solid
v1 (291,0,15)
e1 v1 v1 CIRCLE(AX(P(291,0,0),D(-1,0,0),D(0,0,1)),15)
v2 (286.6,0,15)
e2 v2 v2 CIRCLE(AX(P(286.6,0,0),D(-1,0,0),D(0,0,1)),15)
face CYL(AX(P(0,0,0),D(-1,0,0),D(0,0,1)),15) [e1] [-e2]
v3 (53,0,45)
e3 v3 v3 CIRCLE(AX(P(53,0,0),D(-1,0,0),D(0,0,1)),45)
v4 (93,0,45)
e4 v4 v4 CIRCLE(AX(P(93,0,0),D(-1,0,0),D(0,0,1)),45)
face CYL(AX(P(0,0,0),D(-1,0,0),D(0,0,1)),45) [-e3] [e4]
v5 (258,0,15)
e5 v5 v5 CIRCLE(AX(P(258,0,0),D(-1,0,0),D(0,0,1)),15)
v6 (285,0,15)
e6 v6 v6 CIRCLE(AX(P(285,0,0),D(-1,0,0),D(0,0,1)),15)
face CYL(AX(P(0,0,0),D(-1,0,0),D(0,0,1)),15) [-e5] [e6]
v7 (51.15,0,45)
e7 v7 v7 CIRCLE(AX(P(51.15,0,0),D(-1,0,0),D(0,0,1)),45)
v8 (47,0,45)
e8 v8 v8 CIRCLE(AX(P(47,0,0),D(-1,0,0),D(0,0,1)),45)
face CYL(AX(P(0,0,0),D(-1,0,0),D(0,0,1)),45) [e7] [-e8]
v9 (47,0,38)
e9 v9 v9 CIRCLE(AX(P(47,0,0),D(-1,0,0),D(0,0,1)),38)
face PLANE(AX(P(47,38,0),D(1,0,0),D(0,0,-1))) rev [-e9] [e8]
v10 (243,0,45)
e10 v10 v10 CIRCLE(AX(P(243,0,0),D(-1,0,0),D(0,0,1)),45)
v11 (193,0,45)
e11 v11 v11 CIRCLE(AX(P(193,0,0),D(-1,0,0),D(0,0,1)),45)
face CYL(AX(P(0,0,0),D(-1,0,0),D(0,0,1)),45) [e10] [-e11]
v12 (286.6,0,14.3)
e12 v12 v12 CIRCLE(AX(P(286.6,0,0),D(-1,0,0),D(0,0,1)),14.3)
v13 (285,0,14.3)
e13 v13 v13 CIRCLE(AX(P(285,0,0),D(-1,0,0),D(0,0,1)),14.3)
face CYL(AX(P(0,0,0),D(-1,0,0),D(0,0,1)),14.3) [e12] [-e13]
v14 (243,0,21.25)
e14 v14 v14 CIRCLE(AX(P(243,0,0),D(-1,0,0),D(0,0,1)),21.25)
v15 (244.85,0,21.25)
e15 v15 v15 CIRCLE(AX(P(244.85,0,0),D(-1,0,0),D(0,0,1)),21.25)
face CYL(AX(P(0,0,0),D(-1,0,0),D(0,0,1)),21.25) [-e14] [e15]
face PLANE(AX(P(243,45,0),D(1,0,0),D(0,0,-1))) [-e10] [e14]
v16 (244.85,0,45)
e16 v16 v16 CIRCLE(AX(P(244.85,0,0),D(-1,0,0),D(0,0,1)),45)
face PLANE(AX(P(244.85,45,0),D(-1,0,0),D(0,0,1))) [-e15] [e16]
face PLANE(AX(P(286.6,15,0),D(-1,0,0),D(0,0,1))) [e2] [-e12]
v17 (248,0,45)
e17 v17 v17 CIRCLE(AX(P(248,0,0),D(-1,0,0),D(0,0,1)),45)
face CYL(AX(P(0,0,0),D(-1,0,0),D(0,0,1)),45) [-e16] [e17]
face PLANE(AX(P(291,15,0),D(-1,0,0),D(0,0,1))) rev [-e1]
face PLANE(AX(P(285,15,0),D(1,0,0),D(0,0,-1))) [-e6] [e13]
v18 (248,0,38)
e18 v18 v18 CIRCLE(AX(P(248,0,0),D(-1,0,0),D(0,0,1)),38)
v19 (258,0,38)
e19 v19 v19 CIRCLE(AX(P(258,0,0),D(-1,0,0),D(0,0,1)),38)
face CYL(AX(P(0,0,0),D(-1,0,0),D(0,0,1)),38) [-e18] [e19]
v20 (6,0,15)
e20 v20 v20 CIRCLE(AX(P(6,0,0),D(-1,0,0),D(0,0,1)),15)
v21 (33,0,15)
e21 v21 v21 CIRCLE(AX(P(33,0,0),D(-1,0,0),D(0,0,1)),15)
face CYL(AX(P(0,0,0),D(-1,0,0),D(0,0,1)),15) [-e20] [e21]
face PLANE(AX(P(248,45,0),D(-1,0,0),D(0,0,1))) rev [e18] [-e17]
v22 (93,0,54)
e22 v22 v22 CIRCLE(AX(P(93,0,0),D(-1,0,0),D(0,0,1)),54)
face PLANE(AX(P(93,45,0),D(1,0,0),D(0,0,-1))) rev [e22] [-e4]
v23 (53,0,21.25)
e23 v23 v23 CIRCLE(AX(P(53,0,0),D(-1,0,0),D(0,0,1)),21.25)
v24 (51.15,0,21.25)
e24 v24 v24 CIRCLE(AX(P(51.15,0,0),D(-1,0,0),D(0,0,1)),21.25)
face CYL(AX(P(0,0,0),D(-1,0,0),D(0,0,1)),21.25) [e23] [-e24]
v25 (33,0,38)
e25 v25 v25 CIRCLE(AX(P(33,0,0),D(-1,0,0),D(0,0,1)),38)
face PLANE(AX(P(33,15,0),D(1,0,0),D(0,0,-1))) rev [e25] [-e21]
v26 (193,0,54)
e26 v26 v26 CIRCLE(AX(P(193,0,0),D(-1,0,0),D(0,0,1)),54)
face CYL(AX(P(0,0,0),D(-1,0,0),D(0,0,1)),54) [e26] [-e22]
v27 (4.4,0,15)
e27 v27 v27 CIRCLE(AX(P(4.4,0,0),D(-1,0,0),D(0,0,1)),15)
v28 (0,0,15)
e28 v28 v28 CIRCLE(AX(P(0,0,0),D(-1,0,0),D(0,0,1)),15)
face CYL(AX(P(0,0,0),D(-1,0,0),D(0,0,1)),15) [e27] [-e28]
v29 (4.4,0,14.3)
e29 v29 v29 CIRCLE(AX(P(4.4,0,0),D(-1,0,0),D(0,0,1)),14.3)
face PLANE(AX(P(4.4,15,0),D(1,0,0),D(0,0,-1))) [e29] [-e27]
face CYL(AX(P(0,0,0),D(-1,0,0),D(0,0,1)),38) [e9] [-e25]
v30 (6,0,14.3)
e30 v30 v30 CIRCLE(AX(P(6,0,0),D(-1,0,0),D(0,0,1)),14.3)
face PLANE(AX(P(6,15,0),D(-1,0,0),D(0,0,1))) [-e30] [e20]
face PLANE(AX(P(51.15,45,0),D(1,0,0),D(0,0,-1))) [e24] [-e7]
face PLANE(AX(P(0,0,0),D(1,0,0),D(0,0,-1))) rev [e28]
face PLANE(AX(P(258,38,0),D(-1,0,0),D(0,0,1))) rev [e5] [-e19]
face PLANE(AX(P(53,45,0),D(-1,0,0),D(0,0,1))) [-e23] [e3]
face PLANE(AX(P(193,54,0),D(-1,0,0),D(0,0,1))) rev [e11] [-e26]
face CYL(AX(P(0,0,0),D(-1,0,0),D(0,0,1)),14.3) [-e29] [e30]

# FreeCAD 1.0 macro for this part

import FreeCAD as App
import Part
import Sketcher
Q = App.Units.Quantity


def add_polygon(sketch, points):
    """Adds a closed chain of lines whose ends are joined by coincident constraints."""
    first, n = sketch.GeometryCount, len(points)
    for a, b in zip(points, points[1:] + points[:1]):
        sketch.addGeometry(Part.LineSegment(App.Vector(*a, 0), App.Vector(*b, 0)), False)
    for i in range(n):
        sketch.addConstraint(Sketcher.Constraint("Coincident", first + i, 2, first + (i + 1) % n, 1))

doc = App.newDocument("Part")
body = doc.addObject("PartDesign::Body", "Body")

# Sketch on XY plane
sketch1 = doc.addObject("Sketcher::SketchObject", "Sketch")
body.addObject(sketch1)
sketch1.AttachmentSupport = (doc.XY_Plane, [""])
sketch1.MapMode = "FlatFace"
add_polygon(sketch1, [(0, 0), (291, 0), (291, 15), (258, 15), (258, 38), (248, 38), (248, 45), (193, 45), (193, 54), (93, 54), (93, 45), (47, 45), (47, 38), (33, 38), (33, 15), (0, 15)])  # lines 0-15
sketch1.addConstraint(Sketcher.Constraint("Horizontal", 0))
sketch1.addConstraint(Sketcher.Constraint("Vertical", 1))
sketch1.addConstraint(Sketcher.Constraint("Horizontal", 2))
sketch1.addConstraint(Sketcher.Constraint("Vertical", 3))
sketch1.addConstraint(Sketcher.Constraint("Horizontal", 4))
sketch1.addConstraint(Sketcher.Constraint("Vertical", 5))
sketch1.addConstraint(Sketcher.Constraint("Horizontal", 6))
sketch1.addConstraint(Sketcher.Constraint("Vertical", 7))
sketch1.addConstraint(Sketcher.Constraint("Horizontal", 8))
sketch1.addConstraint(Sketcher.Constraint("Vertical", 9))
sketch1.addConstraint(Sketcher.Constraint("Horizontal", 10))
sketch1.addConstraint(Sketcher.Constraint("Vertical", 11))
sketch1.addConstraint(Sketcher.Constraint("Horizontal", 12))
sketch1.addConstraint(Sketcher.Constraint("Vertical", 13))
sketch1.addConstraint(Sketcher.Constraint("Horizontal", 14))
sketch1.addConstraint(Sketcher.Constraint("Vertical", 15))
sketch1.addConstraint(Sketcher.Constraint("Coincident", 15, 2, -1, 1))
sketch1.addConstraint(Sketcher.Constraint("Horizontal", 6, 2, 9, 2))
sketch1.addConstraint(Sketcher.Constraint("Horizontal", 4, 2, 11, 2))
sketch1.addConstraint(Sketcher.Constraint("Horizontal", 2, 2, 13, 2))
sketch1.addConstraint(Sketcher.Constraint("Equal", 2, 14))
sketch1.addConstraint(Sketcher.Constraint("DistanceX", 0, 1, 0, 2, Q("291 mm")))
sketch1.addConstraint(Sketcher.Constraint("DistanceX", 2, 2, 2, 1, Q("33 mm")))
sketch1.addConstraint(Sketcher.Constraint("DistanceX", 4, 2, 4, 1, Q("10 mm")))
sketch1.addConstraint(Sketcher.Constraint("DistanceX", 6, 2, 6, 1, Q("55 mm")))
sketch1.addConstraint(Sketcher.Constraint("DistanceX", 8, 2, 8, 1, Q("100 mm")))
sketch1.addConstraint(Sketcher.Constraint("DistanceX", 10, 2, 10, 1, Q("46 mm")))
sketch1.addConstraint(Sketcher.Constraint("DistanceY", 1, 1, 1, 2, Q("15 mm")))
sketch1.addConstraint(Sketcher.Constraint("DistanceY", 3, 1, 3, 2, Q("23 mm")))
sketch1.addConstraint(Sketcher.Constraint("DistanceY", 5, 1, 5, 2, Q("7 mm")))
sketch1.addConstraint(Sketcher.Constraint("DistanceY", 7, 1, 7, 2, Q("9 mm")))
revolution = doc.addObject("PartDesign::Revolution", "Revolution")
body.addObject(revolution)
revolution.Profile = sketch1
revolution.ReferenceAxis = (sketch1, ["H_Axis"])
revolution.Angle = 360

# Sketch on XY plane
sketch2 = doc.addObject("Sketcher::SketchObject", "Sketch001")
body.addObject(sketch2)
sketch2.AttachmentSupport = (doc.XY_Plane, [""])
sketch2.MapMode = "FlatFace"
add_polygon(sketch2, [(4.4, 15), (4.4, 14.3), (6, 14.3), (6, 15)])  # lines 0-3
add_polygon(sketch2, [(51.1, 45), (51.1, 21.2), (53, 21.2), (53, 45)])  # lines 4-7
add_polygon(sketch2, [(243, 45), (243, 21.2), (244.8, 21.2), (244.8, 45)])  # lines 8-11
add_polygon(sketch2, [(285, 15), (285, 14.3), (286.6, 14.3), (286.6, 15)])  # lines 12-15
sketch2.addConstraint(Sketcher.Constraint("Vertical", 0))
sketch2.addConstraint(Sketcher.Constraint("Horizontal", 1))
sketch2.addConstraint(Sketcher.Constraint("Vertical", 2))
sketch2.addConstraint(Sketcher.Constraint("Horizontal", 3))
sketch2.addConstraint(Sketcher.Constraint("Vertical", 4))
sketch2.addConstraint(Sketcher.Constraint("Horizontal", 5))
sketch2.addConstraint(Sketcher.Constraint("Vertical", 6))
sketch2.addConstraint(Sketcher.Constraint("Horizontal", 7))
sketch2.addConstraint(Sketcher.Constraint("Vertical", 8))
sketch2.addConstraint(Sketcher.Constraint("Horizontal", 9))
sketch2.addConstraint(Sketcher.Constraint("Vertical", 10))
sketch2.addConstraint(Sketcher.Constraint("Horizontal", 11))
sketch2.addConstraint(Sketcher.Constraint("Vertical", 12))
sketch2.addConstraint(Sketcher.Constraint("Horizontal", 13))
sketch2.addConstraint(Sketcher.Constraint("Vertical", 14))
sketch2.addConstraint(Sketcher.Constraint("Horizontal", 15))
sketch2.addConstraint(Sketcher.Constraint("Horizontal", 5, 2, 8, 2))
sketch2.addConstraint(Sketcher.Constraint("Horizontal", 7, 2, 10, 2))
sketch2.addConstraint(Sketcher.Constraint("Horizontal", 1, 2, 12, 2))
sketch2.addConstraint(Sketcher.Constraint("Horizontal", 3, 2, 14, 2))
sketch2.addConstraint(Sketcher.Constraint("Equal", 7, 9))
sketch2.addConstraint(Sketcher.Constraint("Equal", 3, 13))
sketch2.addConstraint(Sketcher.Constraint("DistanceX", 1, 1, 1, 2, Q("1.6 mm")))
sketch2.addConstraint(Sketcher.Constraint("DistanceY", 0, 2, 0, 1, Q("0.7 mm")))
sketch2.addConstraint(Sketcher.Constraint("DistanceX", -1, 1, 1, 2, Q("6 mm")))
sketch2.addConstraint(Sketcher.Constraint("DistanceY", -1, 1, 2, 2, Q("15 mm")))
sketch2.addConstraint(Sketcher.Constraint("DistanceX", -1, 1, 5, 2, Q("53 mm")))
sketch2.addConstraint(Sketcher.Constraint("DistanceY", -1, 1, 6, 2, Q("45 mm")))
sketch2.addConstraint(Sketcher.Constraint("DistanceX", -1, 1, 8, 2, Q("243 mm")))
sketch2.addConstraint(Sketcher.Constraint("DistanceX", -1, 1, 12, 2, Q("285 mm")))
sketch2.addConstraint(Sketcher.Constraint("DistanceX", 5, 1, 5, 2, Q("1.85 mm")))
sketch2.addConstraint(Sketcher.Constraint("DistanceY", 4, 2, 4, 1, Q("23.75 mm")))
groove = doc.addObject("PartDesign::Groove", "Groove")
body.addObject(groove)
groove.Profile = sketch2
groove.ReferenceAxis = (sketch2, ["H_Axis"])
groove.Angle = 360

doc.recompute()
